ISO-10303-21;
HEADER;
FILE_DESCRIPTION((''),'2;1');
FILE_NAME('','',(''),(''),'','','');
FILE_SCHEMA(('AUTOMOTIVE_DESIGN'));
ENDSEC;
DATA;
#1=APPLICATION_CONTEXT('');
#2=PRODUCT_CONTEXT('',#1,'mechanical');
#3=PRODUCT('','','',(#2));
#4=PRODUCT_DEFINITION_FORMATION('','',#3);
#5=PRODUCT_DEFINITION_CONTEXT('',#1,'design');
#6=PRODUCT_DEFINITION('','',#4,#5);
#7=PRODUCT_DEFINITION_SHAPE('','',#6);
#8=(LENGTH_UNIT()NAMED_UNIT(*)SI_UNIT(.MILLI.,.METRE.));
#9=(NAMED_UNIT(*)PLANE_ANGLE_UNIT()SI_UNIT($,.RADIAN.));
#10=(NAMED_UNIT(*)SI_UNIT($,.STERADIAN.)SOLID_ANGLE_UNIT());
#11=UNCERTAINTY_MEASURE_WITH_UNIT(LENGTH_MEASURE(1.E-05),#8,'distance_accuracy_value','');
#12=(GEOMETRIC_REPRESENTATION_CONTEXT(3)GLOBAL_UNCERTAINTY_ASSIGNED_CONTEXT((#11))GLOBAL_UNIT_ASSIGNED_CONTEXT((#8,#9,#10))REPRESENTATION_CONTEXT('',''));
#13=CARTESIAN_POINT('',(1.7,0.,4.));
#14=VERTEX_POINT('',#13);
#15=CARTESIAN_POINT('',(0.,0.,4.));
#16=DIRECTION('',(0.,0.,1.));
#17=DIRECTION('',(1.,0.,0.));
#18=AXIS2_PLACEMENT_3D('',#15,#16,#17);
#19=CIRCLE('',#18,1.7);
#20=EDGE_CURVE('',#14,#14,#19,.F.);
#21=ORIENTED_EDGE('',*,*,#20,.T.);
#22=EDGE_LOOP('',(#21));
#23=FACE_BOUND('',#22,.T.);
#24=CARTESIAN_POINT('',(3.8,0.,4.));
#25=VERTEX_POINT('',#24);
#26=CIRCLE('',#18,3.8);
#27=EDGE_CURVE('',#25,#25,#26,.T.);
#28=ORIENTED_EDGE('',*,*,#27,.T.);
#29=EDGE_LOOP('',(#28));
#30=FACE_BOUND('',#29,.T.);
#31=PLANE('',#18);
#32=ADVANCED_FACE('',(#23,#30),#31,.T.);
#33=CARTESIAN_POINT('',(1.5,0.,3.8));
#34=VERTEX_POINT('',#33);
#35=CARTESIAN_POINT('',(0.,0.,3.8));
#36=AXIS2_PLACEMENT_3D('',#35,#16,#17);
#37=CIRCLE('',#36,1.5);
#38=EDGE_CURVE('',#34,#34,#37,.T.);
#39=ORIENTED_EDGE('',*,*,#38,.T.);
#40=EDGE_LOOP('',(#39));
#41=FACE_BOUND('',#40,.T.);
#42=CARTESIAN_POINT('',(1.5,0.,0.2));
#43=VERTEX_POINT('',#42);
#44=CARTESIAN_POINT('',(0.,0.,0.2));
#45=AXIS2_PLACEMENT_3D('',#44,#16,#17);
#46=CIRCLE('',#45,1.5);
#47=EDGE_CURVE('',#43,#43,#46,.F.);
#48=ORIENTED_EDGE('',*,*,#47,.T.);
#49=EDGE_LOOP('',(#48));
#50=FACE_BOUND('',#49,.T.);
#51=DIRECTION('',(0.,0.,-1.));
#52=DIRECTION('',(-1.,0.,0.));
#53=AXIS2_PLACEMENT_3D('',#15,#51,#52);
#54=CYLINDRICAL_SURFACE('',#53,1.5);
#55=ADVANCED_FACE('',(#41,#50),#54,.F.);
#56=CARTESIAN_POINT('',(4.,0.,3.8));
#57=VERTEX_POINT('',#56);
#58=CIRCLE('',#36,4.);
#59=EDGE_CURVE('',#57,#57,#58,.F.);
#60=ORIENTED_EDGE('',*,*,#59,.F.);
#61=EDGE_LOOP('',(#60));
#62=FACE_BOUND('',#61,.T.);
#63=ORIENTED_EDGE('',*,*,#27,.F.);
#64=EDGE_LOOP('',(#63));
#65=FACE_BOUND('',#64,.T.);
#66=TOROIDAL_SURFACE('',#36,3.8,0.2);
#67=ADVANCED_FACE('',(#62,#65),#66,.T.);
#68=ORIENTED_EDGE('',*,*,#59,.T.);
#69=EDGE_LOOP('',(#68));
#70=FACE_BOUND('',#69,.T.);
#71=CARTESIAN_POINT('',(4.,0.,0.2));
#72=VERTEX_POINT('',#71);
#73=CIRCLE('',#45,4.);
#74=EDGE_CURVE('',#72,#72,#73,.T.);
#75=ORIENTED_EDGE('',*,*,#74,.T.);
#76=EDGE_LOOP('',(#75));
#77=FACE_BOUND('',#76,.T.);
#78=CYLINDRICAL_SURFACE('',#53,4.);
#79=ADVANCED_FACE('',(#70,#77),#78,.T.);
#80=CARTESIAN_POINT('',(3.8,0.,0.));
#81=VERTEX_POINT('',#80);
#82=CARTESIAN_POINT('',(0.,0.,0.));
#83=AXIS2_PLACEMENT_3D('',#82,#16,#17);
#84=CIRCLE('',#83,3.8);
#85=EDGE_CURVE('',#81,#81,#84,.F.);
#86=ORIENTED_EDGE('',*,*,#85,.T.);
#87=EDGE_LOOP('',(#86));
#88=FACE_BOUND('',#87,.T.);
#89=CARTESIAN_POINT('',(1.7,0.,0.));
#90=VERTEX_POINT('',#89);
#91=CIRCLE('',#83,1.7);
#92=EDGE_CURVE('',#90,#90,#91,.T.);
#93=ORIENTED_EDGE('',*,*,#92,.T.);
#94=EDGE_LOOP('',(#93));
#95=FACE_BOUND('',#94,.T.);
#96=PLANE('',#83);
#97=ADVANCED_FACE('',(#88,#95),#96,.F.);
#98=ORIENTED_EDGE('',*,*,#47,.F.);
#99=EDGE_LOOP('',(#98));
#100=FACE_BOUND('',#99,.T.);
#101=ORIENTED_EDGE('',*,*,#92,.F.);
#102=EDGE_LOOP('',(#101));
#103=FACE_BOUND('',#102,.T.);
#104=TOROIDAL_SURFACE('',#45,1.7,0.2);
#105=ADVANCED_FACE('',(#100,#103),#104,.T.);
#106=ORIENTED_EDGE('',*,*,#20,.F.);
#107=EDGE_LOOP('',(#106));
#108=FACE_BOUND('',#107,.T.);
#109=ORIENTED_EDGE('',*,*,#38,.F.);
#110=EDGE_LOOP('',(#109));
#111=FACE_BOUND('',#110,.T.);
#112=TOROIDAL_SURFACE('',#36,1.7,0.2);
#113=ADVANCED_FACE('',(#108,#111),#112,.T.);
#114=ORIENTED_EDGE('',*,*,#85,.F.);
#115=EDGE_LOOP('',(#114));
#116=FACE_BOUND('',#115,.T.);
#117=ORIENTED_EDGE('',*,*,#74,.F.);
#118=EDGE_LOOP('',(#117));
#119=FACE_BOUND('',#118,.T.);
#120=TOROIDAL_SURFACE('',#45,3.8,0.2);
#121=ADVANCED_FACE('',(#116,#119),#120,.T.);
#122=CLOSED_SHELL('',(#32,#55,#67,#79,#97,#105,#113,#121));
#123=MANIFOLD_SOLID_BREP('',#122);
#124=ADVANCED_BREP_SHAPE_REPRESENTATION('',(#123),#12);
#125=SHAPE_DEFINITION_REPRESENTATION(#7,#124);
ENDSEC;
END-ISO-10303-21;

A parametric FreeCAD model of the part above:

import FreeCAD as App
import Part
import Sketcher
from FreeCAD import Vector


def edges_at(feature, points):
    """Names of the edges that pass closest to the given points."""
    edges = feature.Shape.Edges
    near = lambda p: min(range(len(edges)), key=lambda i: edges[i].distToShape(Part.Vertex(*p))[0])
    return sorted({f"Edge{near(p) + 1}" for p in points})

doc = App.newDocument("Part")
body = doc.addObject("PartDesign::Body", "Body")

# Sketch on XY plane
sketch1 = body.newObject("Sketcher::SketchObject", "Sketch")
sketch1.AttachmentSupport = (doc.getObject("XY_Plane"), [""])
sketch1.MapMode = "FlatFace"
sketch1.addGeometry([
    Part.Circle(Vector(0, 0, 0), Vector(0, 0, 1), 4),
    Part.Circle(Vector(0, 0, 0), Vector(0, 0, 1), 1.5),
], False)
sketch1.addConstraint([
    Sketcher.Constraint("Coincident", 0, 3, -1, 1),
    Sketcher.Constraint("Coincident", 1, 3, -1, 1),
    Sketcher.Constraint("Diameter", 0, 8.0),
    Sketcher.Constraint("Diameter", 1, 3.0),
])
pad1 = body.newObject("PartDesign::Pad", "Pad")
pad1.Profile = sketch1
pad1.Length = 4
doc.recompute()

fillet = body.newObject("PartDesign::Fillet", "Fillet")
fillet.Base = (pad1, edges_at(pad1, [
    (-4, 0, 0),
    (-4, 0, 4),
    (-1.5, 0, 0),
    (-1.5, 0, 4),
]))
fillet.Radius = 0.2

doc.recompute()
